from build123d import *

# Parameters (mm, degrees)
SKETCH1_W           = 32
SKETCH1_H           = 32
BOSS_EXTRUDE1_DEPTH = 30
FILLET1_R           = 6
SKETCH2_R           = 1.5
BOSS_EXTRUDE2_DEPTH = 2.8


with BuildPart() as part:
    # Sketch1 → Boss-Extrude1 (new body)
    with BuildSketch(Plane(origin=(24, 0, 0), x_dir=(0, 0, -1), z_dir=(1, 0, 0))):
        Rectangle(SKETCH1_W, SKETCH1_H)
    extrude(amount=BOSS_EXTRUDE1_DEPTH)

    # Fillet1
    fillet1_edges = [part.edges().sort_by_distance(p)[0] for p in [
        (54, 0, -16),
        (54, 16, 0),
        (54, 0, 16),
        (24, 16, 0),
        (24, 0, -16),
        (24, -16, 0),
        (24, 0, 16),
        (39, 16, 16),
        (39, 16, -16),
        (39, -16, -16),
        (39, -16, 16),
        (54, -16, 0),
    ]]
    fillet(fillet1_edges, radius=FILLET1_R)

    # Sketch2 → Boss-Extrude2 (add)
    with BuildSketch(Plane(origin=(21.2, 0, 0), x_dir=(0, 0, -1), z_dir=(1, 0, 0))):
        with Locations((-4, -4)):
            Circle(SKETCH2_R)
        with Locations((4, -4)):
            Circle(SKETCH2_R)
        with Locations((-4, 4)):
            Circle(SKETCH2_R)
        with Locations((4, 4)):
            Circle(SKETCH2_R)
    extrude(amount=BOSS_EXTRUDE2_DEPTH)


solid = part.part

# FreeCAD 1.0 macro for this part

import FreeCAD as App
import Part
import Sketcher

V = App.Vector


def add_polygon(sketch, points):
    """Adds a closed chain of lines whose ends are joined by coincident constraints."""
    first, n = sketch.GeometryCount, len(points)
    for a, b in zip(points, points[1:] + points[:1]):
        sketch.addGeometry(Part.LineSegment(App.Vector(*a, 0), App.Vector(*b, 0)), False)
    for i in range(n):
        sketch.addConstraint(Sketcher.Constraint("Coincident", first + i, 2, first + (i + 1) % n, 1))

doc = App.newDocument("Part")
body = doc.addObject("PartDesign::Body", "Body")

# Sketch on YZ plane
sketch1 = body.newObject("Sketcher::SketchObject", "Sketch")
sketch1.AttachmentSupport = (doc.getObject("YZ_Plane"), [""])
sketch1.MapMode = "FlatFace"
sketch1.AttachmentOffset = App.Placement(V(0, 0, 24), App.Rotation())
add_polygon(sketch1, [(16, 16), (-16, 16), (-16, -16), (16, -16)])  # lines 0-3
sketch1.addConstraint([
    Sketcher.Constraint("Horizontal", 0),
    Sketcher.Constraint("Vertical", 1),
    Sketcher.Constraint("Horizontal", 2),
    Sketcher.Constraint("Vertical", 3),
    Sketcher.Constraint("Symmetric", 0, 2, 2, 2, -1, 1),
    Sketcher.Constraint("Equal", 2, 1),
    Sketcher.Constraint("DistanceX", 0, 2, 0, 1, 32.0),
])
pad1 = body.newObject("PartDesign::Pad", "Pad")
pad1.Profile = sketch1
pad1.Length = 30
doc.recompute()

fillet = body.newObject("PartDesign::Fillet", "Fillet")
fillet.Base = (pad1, ["Edge1"])
fillet.UseAllEdges = True
fillet.Radius = 6

# Sketch on YZ plane
sketch2 = body.newObject("Sketcher::SketchObject", "Sketch001")
sketch2.AttachmentSupport = (doc.getObject("YZ_Plane"), [""])
sketch2.MapMode = "FlatFace"
sketch2.AttachmentOffset = App.Placement(V(0, 0, 21.2), App.Rotation())
sketch2.addGeometry([
    Part.Circle(V(-4, 4, 0), V(0, 0, 1), 1.5),
    Part.Circle(V(-4, -4, 0), V(0, 0, 1), 1.5),
    Part.Circle(V(4, 4, 0), V(0, 0, 1), 1.5),
    Part.Circle(V(4, -4, 0), V(0, 0, 1), 1.5),
], False)
sketch2.addConstraint([
    Sketcher.Constraint("Equal", 0, 1),
    Sketcher.Constraint("Equal", 1, 2),
    Sketcher.Constraint("Equal", 2, 3),
    Sketcher.Constraint("Symmetric", 1, 3, 2, 3, -1, 1),
    Sketcher.Constraint("Symmetric", 0, 3, 3, 3, -1, 1),
    Sketcher.Constraint("Symmetric", 0, 3, 2, 3, -2),
    Sketcher.Constraint("Diameter", 0, 3.0),
    Sketcher.Constraint("DistanceX", 0, 3, -1, 1, 4.0),
    Sketcher.Constraint("DistanceY", -1, 1, 0, 3, 4.0),
])
pad2 = body.newObject("PartDesign::Pad", "Pad001")
pad2.Profile = sketch2
pad2.Length = 2.8

doc.recompute()
